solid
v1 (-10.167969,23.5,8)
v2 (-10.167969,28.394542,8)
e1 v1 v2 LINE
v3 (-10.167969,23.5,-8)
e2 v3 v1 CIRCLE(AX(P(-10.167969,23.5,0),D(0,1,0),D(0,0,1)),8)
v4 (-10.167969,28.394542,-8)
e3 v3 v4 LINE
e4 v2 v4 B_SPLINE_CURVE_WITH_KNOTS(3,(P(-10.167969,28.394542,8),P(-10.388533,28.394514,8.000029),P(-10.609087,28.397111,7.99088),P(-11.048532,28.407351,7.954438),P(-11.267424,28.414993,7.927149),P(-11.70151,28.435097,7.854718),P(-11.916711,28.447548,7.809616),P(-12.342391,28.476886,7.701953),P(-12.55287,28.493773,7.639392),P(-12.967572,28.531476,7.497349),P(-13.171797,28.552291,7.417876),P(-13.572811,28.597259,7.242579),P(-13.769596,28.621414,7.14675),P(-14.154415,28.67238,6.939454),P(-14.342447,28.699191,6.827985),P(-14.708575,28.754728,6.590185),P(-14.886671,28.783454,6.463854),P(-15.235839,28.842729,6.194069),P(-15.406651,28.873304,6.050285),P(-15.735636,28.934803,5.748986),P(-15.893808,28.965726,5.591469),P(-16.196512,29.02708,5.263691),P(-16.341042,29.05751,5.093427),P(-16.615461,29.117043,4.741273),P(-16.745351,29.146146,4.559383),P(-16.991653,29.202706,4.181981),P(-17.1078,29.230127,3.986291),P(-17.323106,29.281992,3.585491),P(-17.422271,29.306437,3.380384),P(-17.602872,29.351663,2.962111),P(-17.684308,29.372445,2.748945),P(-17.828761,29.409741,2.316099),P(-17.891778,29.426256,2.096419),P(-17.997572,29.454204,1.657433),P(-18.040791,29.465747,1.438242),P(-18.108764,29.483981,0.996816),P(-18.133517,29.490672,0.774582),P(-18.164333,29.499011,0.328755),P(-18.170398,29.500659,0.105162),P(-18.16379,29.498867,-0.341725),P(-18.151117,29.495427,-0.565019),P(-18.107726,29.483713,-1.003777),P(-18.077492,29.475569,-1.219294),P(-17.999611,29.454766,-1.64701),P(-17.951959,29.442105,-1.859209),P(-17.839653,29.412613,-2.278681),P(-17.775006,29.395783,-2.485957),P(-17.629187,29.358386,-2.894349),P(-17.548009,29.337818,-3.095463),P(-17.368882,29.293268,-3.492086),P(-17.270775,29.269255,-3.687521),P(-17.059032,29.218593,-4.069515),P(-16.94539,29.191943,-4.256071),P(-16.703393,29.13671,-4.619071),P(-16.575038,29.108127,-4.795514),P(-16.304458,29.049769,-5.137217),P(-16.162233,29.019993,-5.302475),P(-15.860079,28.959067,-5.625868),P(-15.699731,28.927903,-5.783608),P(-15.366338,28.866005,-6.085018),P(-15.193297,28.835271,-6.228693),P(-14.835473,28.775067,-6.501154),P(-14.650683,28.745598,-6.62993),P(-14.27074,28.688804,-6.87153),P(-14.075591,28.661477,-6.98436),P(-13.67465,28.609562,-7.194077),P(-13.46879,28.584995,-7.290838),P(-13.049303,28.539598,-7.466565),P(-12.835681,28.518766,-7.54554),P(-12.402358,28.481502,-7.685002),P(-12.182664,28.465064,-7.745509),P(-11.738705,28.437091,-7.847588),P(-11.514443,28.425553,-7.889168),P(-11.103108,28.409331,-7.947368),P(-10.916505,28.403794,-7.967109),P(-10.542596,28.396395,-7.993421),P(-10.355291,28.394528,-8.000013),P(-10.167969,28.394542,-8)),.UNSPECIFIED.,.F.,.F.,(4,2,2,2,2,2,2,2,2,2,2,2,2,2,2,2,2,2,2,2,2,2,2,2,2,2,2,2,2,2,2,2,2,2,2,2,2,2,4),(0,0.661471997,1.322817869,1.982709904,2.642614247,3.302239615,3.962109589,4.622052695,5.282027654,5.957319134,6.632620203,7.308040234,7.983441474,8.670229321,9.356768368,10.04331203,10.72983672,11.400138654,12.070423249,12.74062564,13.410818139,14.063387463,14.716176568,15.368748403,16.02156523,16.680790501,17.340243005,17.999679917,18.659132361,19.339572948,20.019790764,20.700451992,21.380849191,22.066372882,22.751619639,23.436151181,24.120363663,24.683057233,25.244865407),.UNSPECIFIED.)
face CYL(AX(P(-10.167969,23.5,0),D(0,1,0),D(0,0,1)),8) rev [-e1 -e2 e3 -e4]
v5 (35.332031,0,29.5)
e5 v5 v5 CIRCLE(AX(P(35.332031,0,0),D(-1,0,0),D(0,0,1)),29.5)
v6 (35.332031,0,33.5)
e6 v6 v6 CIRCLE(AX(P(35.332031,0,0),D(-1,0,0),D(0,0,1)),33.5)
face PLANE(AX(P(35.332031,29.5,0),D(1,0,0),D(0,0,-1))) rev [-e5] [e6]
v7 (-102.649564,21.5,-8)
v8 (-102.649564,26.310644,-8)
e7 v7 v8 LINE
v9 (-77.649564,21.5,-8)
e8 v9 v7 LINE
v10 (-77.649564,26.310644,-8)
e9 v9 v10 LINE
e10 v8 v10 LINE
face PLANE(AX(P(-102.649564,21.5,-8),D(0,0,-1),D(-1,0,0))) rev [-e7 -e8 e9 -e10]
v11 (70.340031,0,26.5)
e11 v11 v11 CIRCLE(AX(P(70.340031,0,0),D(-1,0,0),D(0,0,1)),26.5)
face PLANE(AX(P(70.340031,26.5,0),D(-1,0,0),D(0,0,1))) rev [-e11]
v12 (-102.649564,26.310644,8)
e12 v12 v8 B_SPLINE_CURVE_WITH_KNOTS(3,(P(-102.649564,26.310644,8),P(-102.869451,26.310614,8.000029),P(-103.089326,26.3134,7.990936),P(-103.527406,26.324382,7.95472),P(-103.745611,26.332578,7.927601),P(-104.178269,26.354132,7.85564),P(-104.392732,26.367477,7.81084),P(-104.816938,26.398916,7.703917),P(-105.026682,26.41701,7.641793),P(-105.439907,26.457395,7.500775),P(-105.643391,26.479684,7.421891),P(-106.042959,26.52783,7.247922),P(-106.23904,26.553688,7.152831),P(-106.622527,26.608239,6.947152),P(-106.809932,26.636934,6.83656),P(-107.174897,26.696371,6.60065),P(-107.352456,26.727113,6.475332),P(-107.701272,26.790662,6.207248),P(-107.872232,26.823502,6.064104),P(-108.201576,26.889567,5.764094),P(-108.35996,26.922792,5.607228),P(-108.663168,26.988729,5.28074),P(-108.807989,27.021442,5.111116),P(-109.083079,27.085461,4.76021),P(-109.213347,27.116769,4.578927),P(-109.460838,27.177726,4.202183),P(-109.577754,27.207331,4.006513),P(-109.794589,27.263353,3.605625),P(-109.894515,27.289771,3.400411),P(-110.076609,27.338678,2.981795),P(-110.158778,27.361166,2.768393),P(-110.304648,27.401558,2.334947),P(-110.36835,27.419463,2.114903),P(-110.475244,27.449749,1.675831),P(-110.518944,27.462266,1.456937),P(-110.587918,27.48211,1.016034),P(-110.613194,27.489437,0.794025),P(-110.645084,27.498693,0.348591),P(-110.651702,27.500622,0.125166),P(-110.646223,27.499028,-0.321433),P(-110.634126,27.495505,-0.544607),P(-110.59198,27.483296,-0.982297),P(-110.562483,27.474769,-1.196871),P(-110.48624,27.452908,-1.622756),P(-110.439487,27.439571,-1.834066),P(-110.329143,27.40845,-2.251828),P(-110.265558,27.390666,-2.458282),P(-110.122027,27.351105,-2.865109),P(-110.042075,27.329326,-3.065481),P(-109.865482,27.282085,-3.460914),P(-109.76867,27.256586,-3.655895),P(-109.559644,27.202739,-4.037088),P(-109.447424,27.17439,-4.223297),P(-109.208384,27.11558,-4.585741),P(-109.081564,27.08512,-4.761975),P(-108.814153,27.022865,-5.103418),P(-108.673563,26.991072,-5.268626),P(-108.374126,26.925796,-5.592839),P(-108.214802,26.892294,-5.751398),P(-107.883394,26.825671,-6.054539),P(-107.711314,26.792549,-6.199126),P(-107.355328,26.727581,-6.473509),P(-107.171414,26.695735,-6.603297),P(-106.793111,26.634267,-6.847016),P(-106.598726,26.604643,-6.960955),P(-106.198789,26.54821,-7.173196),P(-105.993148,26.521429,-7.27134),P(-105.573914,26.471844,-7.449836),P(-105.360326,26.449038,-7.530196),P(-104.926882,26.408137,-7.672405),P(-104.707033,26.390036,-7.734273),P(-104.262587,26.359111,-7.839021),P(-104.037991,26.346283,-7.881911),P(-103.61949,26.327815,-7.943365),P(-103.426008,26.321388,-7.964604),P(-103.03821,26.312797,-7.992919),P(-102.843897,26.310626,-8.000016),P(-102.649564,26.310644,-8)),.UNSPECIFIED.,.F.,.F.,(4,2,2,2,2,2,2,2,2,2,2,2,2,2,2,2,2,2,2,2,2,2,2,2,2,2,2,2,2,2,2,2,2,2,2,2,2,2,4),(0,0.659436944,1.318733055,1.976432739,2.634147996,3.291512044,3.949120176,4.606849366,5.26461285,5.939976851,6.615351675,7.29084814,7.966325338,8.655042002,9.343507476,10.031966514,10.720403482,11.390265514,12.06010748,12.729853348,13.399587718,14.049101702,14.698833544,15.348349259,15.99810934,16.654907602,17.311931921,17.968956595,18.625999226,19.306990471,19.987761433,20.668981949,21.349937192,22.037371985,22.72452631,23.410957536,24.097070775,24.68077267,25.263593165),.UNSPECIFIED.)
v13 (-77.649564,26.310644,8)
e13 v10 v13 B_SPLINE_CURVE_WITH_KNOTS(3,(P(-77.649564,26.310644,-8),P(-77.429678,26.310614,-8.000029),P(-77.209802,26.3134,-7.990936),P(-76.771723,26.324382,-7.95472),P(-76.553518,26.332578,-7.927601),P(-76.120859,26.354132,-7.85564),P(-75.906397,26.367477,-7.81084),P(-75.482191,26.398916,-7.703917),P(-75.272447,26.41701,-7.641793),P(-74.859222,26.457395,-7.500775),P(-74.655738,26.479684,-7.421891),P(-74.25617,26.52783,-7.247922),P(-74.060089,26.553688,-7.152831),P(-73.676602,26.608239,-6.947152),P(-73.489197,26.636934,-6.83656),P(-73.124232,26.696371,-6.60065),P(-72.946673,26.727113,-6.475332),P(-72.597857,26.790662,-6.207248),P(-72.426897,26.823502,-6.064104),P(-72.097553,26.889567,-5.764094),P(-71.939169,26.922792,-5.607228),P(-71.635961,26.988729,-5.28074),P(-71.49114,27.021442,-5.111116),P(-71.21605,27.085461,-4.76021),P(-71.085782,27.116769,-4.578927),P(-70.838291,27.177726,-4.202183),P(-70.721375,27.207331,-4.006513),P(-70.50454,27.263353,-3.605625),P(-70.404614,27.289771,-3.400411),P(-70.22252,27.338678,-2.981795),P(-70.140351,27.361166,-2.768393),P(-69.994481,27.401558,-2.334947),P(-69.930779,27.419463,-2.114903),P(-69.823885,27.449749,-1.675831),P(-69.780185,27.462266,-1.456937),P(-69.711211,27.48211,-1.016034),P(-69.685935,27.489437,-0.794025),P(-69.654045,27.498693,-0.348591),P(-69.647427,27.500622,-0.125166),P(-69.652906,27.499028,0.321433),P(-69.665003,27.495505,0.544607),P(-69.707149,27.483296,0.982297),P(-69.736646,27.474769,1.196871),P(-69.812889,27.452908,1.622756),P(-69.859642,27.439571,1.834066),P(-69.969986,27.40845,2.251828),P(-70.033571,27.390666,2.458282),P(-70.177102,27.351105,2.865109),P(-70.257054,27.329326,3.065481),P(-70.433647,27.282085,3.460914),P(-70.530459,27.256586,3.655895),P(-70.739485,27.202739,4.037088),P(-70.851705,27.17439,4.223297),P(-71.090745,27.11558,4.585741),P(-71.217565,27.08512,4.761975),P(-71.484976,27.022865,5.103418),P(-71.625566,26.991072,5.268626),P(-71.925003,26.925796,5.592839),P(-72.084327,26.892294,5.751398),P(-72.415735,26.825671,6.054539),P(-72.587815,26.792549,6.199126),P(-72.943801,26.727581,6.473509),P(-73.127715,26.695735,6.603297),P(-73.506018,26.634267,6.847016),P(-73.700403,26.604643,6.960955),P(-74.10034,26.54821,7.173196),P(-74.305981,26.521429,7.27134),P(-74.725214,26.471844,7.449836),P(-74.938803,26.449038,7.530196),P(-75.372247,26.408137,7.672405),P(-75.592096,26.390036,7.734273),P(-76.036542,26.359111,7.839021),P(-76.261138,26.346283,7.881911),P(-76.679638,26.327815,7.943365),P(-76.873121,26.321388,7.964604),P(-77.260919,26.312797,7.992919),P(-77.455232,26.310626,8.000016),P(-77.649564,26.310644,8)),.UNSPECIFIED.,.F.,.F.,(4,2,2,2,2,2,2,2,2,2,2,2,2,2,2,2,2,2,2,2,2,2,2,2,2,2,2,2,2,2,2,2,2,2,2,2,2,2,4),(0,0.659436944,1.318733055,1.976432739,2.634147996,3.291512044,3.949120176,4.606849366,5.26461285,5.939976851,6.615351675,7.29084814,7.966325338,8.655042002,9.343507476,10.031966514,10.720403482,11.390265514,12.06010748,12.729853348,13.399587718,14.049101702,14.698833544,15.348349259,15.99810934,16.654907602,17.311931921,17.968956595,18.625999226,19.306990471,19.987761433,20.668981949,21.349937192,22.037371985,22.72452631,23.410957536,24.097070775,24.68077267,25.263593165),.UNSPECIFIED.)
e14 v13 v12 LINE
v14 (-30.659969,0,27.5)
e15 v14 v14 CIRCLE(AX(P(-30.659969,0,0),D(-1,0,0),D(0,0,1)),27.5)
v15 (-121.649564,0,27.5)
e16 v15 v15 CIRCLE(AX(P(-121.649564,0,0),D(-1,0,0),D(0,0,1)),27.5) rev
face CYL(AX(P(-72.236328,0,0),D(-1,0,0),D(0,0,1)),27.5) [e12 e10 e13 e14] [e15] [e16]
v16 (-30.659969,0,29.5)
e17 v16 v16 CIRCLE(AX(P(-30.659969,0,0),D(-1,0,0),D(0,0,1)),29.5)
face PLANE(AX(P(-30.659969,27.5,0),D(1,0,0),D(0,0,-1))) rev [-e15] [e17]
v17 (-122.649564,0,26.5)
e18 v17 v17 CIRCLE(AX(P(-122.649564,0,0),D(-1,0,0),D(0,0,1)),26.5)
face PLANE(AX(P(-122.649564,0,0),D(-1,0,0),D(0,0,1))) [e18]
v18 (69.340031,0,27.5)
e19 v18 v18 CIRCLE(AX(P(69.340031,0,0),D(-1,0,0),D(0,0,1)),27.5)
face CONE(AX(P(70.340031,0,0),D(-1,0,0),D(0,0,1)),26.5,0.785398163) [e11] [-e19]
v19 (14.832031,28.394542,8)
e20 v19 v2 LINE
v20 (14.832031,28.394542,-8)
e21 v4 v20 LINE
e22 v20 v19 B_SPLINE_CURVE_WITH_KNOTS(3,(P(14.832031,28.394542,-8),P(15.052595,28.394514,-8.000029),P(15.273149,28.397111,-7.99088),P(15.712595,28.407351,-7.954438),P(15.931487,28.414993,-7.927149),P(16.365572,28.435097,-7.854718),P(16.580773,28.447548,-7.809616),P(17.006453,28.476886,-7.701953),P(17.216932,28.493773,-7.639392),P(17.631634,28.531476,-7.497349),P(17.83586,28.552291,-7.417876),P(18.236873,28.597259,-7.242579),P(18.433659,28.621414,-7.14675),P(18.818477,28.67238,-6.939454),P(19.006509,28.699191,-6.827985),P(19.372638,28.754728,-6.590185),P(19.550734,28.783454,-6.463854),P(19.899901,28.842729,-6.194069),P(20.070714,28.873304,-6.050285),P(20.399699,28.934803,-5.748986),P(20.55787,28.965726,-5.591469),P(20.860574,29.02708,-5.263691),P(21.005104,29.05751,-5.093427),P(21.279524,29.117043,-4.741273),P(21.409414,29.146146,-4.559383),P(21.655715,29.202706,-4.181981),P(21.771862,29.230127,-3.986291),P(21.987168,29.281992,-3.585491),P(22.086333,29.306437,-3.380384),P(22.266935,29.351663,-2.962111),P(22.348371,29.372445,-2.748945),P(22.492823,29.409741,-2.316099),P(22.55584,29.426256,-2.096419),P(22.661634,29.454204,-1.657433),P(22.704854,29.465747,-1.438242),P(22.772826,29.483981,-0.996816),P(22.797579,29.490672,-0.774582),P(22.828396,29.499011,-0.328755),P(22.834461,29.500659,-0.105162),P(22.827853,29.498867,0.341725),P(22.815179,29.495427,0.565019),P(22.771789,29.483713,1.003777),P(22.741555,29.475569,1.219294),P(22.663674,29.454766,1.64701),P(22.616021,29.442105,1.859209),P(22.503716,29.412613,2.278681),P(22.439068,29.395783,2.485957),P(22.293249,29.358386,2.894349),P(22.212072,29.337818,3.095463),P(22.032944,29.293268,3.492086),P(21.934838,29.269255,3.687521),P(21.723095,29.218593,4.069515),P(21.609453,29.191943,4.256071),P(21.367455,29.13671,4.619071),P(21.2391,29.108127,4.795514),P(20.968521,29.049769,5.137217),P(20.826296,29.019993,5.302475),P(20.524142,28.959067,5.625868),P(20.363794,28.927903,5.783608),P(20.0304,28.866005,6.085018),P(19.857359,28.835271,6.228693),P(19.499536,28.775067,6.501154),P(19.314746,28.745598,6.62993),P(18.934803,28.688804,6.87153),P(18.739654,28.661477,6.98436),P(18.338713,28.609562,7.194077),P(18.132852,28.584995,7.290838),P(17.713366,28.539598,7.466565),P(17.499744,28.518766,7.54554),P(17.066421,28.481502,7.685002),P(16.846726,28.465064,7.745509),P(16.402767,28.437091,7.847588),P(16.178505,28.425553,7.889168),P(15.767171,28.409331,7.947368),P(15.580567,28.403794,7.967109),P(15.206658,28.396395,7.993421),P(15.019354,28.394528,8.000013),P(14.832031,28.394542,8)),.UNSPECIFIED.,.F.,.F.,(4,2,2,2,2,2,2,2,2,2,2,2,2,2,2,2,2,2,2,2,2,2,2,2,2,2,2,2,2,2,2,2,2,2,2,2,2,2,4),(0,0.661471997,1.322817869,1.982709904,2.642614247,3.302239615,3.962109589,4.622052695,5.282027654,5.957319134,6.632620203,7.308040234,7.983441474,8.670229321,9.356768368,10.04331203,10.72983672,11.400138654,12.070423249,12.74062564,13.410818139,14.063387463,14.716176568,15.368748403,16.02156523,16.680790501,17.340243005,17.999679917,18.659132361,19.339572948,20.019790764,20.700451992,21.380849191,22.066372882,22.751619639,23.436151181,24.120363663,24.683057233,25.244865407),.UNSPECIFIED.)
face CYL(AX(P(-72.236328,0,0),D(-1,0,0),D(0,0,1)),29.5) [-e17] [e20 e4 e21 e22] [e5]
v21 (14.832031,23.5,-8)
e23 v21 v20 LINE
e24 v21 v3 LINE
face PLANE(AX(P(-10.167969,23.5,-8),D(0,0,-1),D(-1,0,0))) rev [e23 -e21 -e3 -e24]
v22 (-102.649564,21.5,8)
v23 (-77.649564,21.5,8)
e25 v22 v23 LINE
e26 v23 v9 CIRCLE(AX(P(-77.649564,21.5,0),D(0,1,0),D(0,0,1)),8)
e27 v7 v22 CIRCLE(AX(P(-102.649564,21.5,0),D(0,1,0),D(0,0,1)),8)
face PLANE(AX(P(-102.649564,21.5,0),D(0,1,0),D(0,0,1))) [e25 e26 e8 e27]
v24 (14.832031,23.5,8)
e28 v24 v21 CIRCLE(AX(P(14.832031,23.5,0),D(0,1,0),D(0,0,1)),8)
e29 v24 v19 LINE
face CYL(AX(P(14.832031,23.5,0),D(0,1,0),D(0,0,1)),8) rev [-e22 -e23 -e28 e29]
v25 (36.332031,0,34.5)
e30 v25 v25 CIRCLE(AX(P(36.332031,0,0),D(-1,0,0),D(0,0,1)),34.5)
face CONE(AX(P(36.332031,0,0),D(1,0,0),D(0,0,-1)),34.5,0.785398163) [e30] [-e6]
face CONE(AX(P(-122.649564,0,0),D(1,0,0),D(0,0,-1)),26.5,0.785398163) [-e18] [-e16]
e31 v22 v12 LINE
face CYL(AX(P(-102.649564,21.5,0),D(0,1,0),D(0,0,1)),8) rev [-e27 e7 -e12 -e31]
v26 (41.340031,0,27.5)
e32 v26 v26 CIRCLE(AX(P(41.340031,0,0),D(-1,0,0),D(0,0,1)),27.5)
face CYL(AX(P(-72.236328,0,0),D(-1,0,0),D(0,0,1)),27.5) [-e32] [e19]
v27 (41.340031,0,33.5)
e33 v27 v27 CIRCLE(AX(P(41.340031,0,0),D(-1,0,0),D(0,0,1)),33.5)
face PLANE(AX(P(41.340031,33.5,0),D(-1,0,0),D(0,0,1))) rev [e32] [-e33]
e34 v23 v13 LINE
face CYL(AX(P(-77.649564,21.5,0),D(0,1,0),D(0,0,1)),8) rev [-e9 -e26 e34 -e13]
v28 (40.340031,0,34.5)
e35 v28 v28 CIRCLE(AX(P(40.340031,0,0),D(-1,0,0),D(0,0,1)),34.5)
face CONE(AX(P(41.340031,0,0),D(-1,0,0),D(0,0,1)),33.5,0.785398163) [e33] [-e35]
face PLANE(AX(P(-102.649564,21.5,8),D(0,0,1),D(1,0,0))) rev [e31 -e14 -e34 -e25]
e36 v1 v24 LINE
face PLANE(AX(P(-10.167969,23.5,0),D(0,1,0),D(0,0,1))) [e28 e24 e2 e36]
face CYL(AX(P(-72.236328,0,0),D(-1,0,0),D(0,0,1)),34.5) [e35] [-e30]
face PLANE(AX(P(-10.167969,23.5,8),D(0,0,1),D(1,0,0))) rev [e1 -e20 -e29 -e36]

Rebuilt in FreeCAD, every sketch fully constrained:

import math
import FreeCAD as App
import Part
import Sketcher


def edges_at(feature, points):
    """Names of the edges that pass closest to the given points."""
    edges = feature.Shape.Edges
    near = lambda p: min(range(len(edges)), key=lambda i: edges[i].distToShape(Part.Vertex(*p))[0])
    return sorted({f"Edge{near(p) + 1}" for p in points})

doc = App.newDocument("Part")
body = doc.addObject("PartDesign::Body", "Body")

sketch1 = body.newObject("Sketcher::SketchObject", "Sketch")
sketch1.AttachmentSupport = (doc.getObject("XY_Plane"), [""])
sketch1.MapMode = "FlatFace"
sketch1.addGeometry([
    Part.LineSegment(App.Vector(-59.6, 27.5, 0), App.Vector(-59.6, 0, 0)),
    Part.LineSegment(App.Vector(-59.6, 0, 0), App.Vector(70.3, 0, 0)),
    Part.LineSegment(App.Vector(70.3, 0, 0), App.Vector(70.3, 26.5, 0)),
    Part.LineSegment(App.Vector(70.3, 26.5, 0), App.Vector(69.3, 27.5, 0)),
    Part.LineSegment(App.Vector(69.3, 27.5, 0), App.Vector(41.3, 27.5, 0)),
    Part.LineSegment(App.Vector(41.3, 27.5, 0), App.Vector(41.3, 33.5, 0)),
    Part.LineSegment(App.Vector(41.3, 33.5, 0), App.Vector(40.3, 34.5, 0)),
    Part.LineSegment(App.Vector(40.3, 34.5, 0), App.Vector(36.3, 34.5, 0)),
    Part.LineSegment(App.Vector(36.3, 34.5, 0), App.Vector(35.3, 33.5, 0)),
    Part.LineSegment(App.Vector(35.3, 33.5, 0), App.Vector(35.3, 29.5, 0)),
    Part.LineSegment(App.Vector(35.3, 29.5, 0), App.Vector(-30.7, 29.5, 0)),
    Part.LineSegment(App.Vector(-30.7, 29.5, 0), App.Vector(-30.7, 27.5, 0)),
    Part.LineSegment(App.Vector(-30.7, 27.5, 0), App.Vector(-59.6, 27.5, 0)),
], False)
sketch1.addConstraint([
    Sketcher.Constraint("Coincident", 0, 2, 1, 1),
    Sketcher.Constraint("Coincident", 1, 2, 2, 1),
    Sketcher.Constraint("Coincident", 2, 2, 3, 1),
    Sketcher.Constraint("Coincident", 3, 2, 4, 1),
    Sketcher.Constraint("Coincident", 4, 2, 5, 1),
    Sketcher.Constraint("Coincident", 5, 2, 6, 1),
    Sketcher.Constraint("Coincident", 6, 2, 7, 1),
    Sketcher.Constraint("Coincident", 7, 2, 8, 1),
    Sketcher.Constraint("Coincident", 8, 2, 9, 1),
    Sketcher.Constraint("Coincident", 9, 2, 10, 1),
    Sketcher.Constraint("Coincident", 10, 2, 11, 1),
    Sketcher.Constraint("Coincident", 11, 2, 12, 1),
    Sketcher.Constraint("Coincident", 12, 2, 0, 1),
    Sketcher.Constraint("Vertical", 0),
    Sketcher.Constraint("Horizontal", 1),
    Sketcher.Constraint("Vertical", 2),
    Sketcher.Constraint("Horizontal", 4),
    Sketcher.Constraint("Vertical", 5),
    Sketcher.Constraint("Horizontal", 7),
    Sketcher.Constraint("Vertical", 9),
    Sketcher.Constraint("Horizontal", 10),
    Sketcher.Constraint("Vertical", 11),
    Sketcher.Constraint("Horizontal", 12),
    Sketcher.Constraint("PointOnObject", 0, 2, -1),
    Sketcher.Constraint("Parallel", 3, 6),
    Sketcher.Constraint("Perpendicular", 6, 8),
    Sketcher.Constraint("Horizontal", 5, 2, 8, 2),
    Sketcher.Constraint("Horizontal", 4, 2, 11, 2),
    Sketcher.Constraint("Equal", 3, 6),
    Sketcher.Constraint("Equal", 6, 8),
    Sketcher.Constraint("DistanceX", 4, 2, 4, 1, 28.0),
    Sketcher.Constraint("DistanceY", 5, 1, 5, 2, 6.0),
    Sketcher.Constraint("DistanceY", 9, 2, 9, 1, 4.0),
    Sketcher.Constraint("DistanceY", 0, 2, 0, 1, 27.5),
    Sketcher.Constraint("DistanceY", 2, 1, 2, 2, 26.5),
    Sketcher.Constraint("DistanceX", 10, 2, 6, 2, 71.0),
    Sketcher.Constraint("DistanceX", 7, 2, 7, 1, 4.007999),
    Sketcher.Constraint("DistanceX", 1, 1, 1, 2, 129.989595),
    Sketcher.Constraint("DistanceX", -1, 1, 1, 2, 70.340031),
])
revolution = body.newObject("PartDesign::Revolution", "Revolution")
revolution.Profile = sketch1
revolution.ReferenceAxis = (sketch1, ["H_Axis"])
revolution.Angle = 360

sketch2 = body.newObject("Sketcher::SketchObject", "Sketch001")
sketch2.AttachmentSupport = (doc.getObject("XZ_Plane"), [""])
sketch2.MapMode = "FlatFace"
sketch2.AttachmentOffset = App.Placement(App.Vector(0, 0, -29.5), App.Rotation())
sketch2.addGeometry([
    Part.LineSegment(App.Vector(15, -8, 0), App.Vector(-10, -8, 0)),
    Part.ArcOfCircle(Part.Circle(App.Vector(-10, 0, 0), App.Vector(0, 0, 1), 8), math.radians(90), math.radians(270)),
    Part.LineSegment(App.Vector(-10, 8, 0), App.Vector(15, 8, 0)),
    Part.ArcOfCircle(Part.Circle(App.Vector(15, 0, 0), App.Vector(0, 0, 1), 8), math.radians(-90), math.radians(90)),
], False)
sketch2.addConstraint([
    Sketcher.Constraint("Tangent", 0, 2, 1, 2),
    Sketcher.Constraint("Tangent", 1, 1, 2, 1),
    Sketcher.Constraint("Tangent", 2, 2, 3, 2),
    Sketcher.Constraint("Tangent", 3, 1, 0, 1),
    Sketcher.Constraint("Horizontal", 0),
    Sketcher.Constraint("Horizontal", 2),
    Sketcher.Constraint("PointOnObject", 1, 3, -1),
    Sketcher.Constraint("Radius", 1, 8.0),
    Sketcher.Constraint("DistanceX", 0, 2, 0, 1, 25.0),
    Sketcher.Constraint("DistanceX", 1, 3, -1, 1, 10.167969),
])
pocket1 = body.newObject("PartDesign::Pocket", "Pocket")
pocket1.Profile = sketch2
pocket1.Length = 6
pocket1.Reversed = True

sketch3 = body.newObject("Sketcher::SketchObject", "Sketch002")
sketch3.AttachmentSupport = (doc.getObject("YZ_Plane"), [""])
sketch3.MapMode = "FlatFace"
sketch3.AttachmentOffset = App.Placement(App.Vector(0, 0, -59.649564), App.Rotation())
sketch3.addGeometry(Part.Circle(App.Vector(0, 0, 0), App.Vector(0, 0, 1), 28), False)
sketch3.addConstraint([
    Sketcher.Constraint("Coincident", 0, 3, -1, 1),
    Sketcher.Constraint("Diameter", 0, 55.0),
])
pad1 = body.newObject("PartDesign::Pad", "Pad")
pad1.Profile = sketch3
pad1.Length = 63
pad1.Reversed = True
doc.recompute()

chamfer = body.newObject("PartDesign::Chamfer", "Chamfer")
chamfer.Base = (pad1, edges_at(pad1, [(-122.65, 0, -27.5)]))
chamfer.Size = 1

sketch4 = body.newObject("Sketcher::SketchObject", "Sketch003")
sketch4.AttachmentSupport = (doc.getObject("XZ_Plane"), [""])
sketch4.MapMode = "FlatFace"
sketch4.AttachmentOffset = App.Placement(App.Vector(0, 0, -27.5), App.Rotation())
sketch4.addGeometry([
    Part.LineSegment(App.Vector(-78, -8, 0), App.Vector(-103, -8, 0)),
    Part.ArcOfCircle(Part.Circle(App.Vector(-103, 0, 0), App.Vector(0, 0, 1), 8), math.radians(90), math.radians(270)),
    Part.LineSegment(App.Vector(-103, 8, 0), App.Vector(-78, 8, 0)),
    Part.ArcOfCircle(Part.Circle(App.Vector(-78, 0, 0), App.Vector(0, 0, 1), 8), math.radians(-90), math.radians(90)),
], False)
sketch4.addConstraint([
    Sketcher.Constraint("Tangent", 0, 2, 1, 2),
    Sketcher.Constraint("Tangent", 1, 1, 2, 1),
    Sketcher.Constraint("Tangent", 2, 2, 3, 2),
    Sketcher.Constraint("Tangent", 3, 1, 0, 1),
    Sketcher.Constraint("Horizontal", 0),
    Sketcher.Constraint("Horizontal", 2),
    Sketcher.Constraint("PointOnObject", 1, 3, -1),
    Sketcher.Constraint("Radius", 1, 8.0),
    Sketcher.Constraint("DistanceX", 0, 2, 0, 1, 25.0),
    Sketcher.Constraint("DistanceX", 1, 3, -1, 1, 102.649564),
])
pocket2 = body.newObject("PartDesign::Pocket", "Pocket001")
pocket2.Profile = sketch4
pocket2.Length = 6
pocket2.Reversed = True

doc.recompute()
